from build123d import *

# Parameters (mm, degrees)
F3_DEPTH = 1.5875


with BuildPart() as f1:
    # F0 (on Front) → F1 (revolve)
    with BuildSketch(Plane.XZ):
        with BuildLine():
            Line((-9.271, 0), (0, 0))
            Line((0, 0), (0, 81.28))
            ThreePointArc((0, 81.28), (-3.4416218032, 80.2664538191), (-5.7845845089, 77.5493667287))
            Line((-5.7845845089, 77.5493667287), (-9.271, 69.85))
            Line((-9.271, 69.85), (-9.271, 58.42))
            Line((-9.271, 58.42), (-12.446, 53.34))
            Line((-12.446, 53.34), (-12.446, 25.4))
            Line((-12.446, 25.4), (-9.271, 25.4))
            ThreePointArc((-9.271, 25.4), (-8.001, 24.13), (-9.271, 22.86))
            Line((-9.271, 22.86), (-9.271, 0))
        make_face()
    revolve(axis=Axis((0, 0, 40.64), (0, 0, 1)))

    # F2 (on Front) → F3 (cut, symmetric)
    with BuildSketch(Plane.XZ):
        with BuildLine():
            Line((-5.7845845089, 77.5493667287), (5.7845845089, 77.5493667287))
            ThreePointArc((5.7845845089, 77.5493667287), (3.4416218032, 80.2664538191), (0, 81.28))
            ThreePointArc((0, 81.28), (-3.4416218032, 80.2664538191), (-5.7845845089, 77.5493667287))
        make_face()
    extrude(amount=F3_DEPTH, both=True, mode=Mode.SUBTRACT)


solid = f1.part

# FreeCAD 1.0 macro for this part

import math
import FreeCAD as App
import Part
import Sketcher

V = App.Vector
Q = App.Units.Quantity

doc = App.newDocument("Part")
body = doc.addObject("PartDesign::Body", "Body")

sketch1 = doc.addObject("Sketcher::SketchObject", "Sketch")
body.addObject(sketch1)
sketch1.AttachmentSupport = (doc.XZ_Plane, [""])
sketch1.MapMode = "FlatFace"
sketch1.addGeometry([
    Part.LineSegment(V(-9.271, 0, 0), V(0, 0, 0)),
    Part.LineSegment(V(0, 0, 0), V(0, 81.28, 0)),
    Part.ArcOfCircle(Part.Circle(V(0, 74.93, 0), V(0, 0, 1), 6.35), math.radians(90), math.radians(155.638104)),
    Part.LineSegment(V(-5.784585, 77.549367, 0), V(-9.271, 69.85, 0)),
    Part.LineSegment(V(-9.271, 69.85, 0), V(-9.271, 58.42, 0)),
    Part.LineSegment(V(-9.271, 58.42, 0), V(-12.446, 53.34, 0)),
    Part.LineSegment(V(-12.446, 53.34, 0), V(-12.446, 25.4, 0)),
    Part.LineSegment(V(-12.446, 25.4, 0), V(-9.271, 25.4, 0)),
    Part.ArcOfCircle(Part.Circle(V(-9.271, 24.13, 0), V(0, 0, 1), 1.27), math.radians(-90), math.radians(90)),
    Part.LineSegment(V(-9.271, 22.86, 0), V(-9.271, 0, 0)),
], False)
sketch1.addConstraint([
    Sketcher.Constraint("Coincident", 0, 2, 1, 1),
    Sketcher.Constraint("Coincident", 1, 2, 2, 1),
    Sketcher.Constraint("Tangent", 2, 2, 3, 1),
    Sketcher.Constraint("Coincident", 3, 2, 4, 1),
    Sketcher.Constraint("Coincident", 4, 2, 5, 1),
    Sketcher.Constraint("Coincident", 5, 2, 6, 1),
    Sketcher.Constraint("Coincident", 6, 2, 7, 1),
    Sketcher.Constraint("Tangent", 7, 2, 8, 2),
    Sketcher.Constraint("Coincident", 8, 1, 9, 1),
    Sketcher.Constraint("Coincident", 9, 2, 0, 1),
    Sketcher.Constraint("Horizontal", 0),
    Sketcher.Constraint("Vertical", 1),
    Sketcher.Constraint("Vertical", 4),
    Sketcher.Constraint("Vertical", 6),
    Sketcher.Constraint("Horizontal", 7),
    Sketcher.Constraint("Vertical", 9),
    Sketcher.Constraint("Coincident", 0, 2, -1, 1),
    Sketcher.Constraint("PointOnObject", 2, 3, -2),
    Sketcher.Constraint("Vertical", 8, 3, 3, 2),
    Sketcher.Constraint("Vertical", 7, 2, 8, 1),
    Sketcher.Constraint("Radius", 2, Q("0.25 in")),
    Sketcher.Constraint("Radius", 8, Q("0.05 in")),
    Sketcher.Constraint("DistanceY", 1, 1, 1, 2, Q("3.2 in")),
    Sketcher.Constraint("DistanceY", 6, 2, 6, 1, Q("1.1 in")),
    Sketcher.Constraint("DistanceY", 9, 2, 9, 1, Q("0.9 in")),
    Sketcher.Constraint("DistanceY", 4, 2, 4, 1, Q("0.45 in")),
    Sketcher.Constraint("DistanceY", -1, 1, 4, 2, Q("2.3 in")),
    Sketcher.Constraint("DistanceX", 0, 1, 0, 2, Q("0.365 in")),
    Sketcher.Constraint("DistanceX", 7, 1, 7, 2, Q("0.125 in")),
])
revolution = doc.addObject("PartDesign::Revolution", "Revolution")
body.addObject(revolution)
revolution.Profile = sketch1
revolution.ReferenceAxis = (sketch1, ["V_Axis"])
revolution.Angle = 360

sketch2 = doc.addObject("Sketcher::SketchObject", "Sketch001")
body.addObject(sketch2)
sketch2.AttachmentSupport = (doc.XZ_Plane, [""])
sketch2.MapMode = "FlatFace"
sketch2.addGeometry([
    Part.LineSegment(V(-5.784585, 77.549367, 0), V(5.784585, 77.549367, 0)),
    Part.ArcOfCircle(Part.Circle(V(0, 74.93, 0), V(0, 0, 1), 6.35), math.radians(24.361896), math.radians(90)),
    Part.ArcOfCircle(Part.Circle(V(0, 74.93, 0), V(0, 0, 1), 6.35), math.radians(90), math.radians(155.638104)),
], False)
sketch2.addConstraint([
    Sketcher.Constraint("Coincident", 0, 2, 1, 1),
    Sketcher.Constraint("Tangent", 1, 2, 2, 1),
    Sketcher.Constraint("Coincident", 2, 2, 0, 1),
    Sketcher.Constraint("Horizontal", 0),
    Sketcher.Constraint("Equal", 1, 2),
    Sketcher.Constraint("PointOnObject", 1, 3, -2),
    Sketcher.Constraint("PointOnObject", 1, 2, -2),
    Sketcher.Constraint("Radius", 1, Q("0.25 in")),
    Sketcher.Constraint("DistanceY", -1, 1, 1, 2, Q("3.2 in")),
    Sketcher.Constraint("DistanceX", 0, 1, 0, 2, 11.569169),
])
pocket1 = doc.addObject("PartDesign::Pocket", "Pocket")
body.addObject(pocket1)
pocket1.Profile = sketch2
pocket1.Length = Q("0.125 in")
pocket1.Midplane = True

doc.recompute()
